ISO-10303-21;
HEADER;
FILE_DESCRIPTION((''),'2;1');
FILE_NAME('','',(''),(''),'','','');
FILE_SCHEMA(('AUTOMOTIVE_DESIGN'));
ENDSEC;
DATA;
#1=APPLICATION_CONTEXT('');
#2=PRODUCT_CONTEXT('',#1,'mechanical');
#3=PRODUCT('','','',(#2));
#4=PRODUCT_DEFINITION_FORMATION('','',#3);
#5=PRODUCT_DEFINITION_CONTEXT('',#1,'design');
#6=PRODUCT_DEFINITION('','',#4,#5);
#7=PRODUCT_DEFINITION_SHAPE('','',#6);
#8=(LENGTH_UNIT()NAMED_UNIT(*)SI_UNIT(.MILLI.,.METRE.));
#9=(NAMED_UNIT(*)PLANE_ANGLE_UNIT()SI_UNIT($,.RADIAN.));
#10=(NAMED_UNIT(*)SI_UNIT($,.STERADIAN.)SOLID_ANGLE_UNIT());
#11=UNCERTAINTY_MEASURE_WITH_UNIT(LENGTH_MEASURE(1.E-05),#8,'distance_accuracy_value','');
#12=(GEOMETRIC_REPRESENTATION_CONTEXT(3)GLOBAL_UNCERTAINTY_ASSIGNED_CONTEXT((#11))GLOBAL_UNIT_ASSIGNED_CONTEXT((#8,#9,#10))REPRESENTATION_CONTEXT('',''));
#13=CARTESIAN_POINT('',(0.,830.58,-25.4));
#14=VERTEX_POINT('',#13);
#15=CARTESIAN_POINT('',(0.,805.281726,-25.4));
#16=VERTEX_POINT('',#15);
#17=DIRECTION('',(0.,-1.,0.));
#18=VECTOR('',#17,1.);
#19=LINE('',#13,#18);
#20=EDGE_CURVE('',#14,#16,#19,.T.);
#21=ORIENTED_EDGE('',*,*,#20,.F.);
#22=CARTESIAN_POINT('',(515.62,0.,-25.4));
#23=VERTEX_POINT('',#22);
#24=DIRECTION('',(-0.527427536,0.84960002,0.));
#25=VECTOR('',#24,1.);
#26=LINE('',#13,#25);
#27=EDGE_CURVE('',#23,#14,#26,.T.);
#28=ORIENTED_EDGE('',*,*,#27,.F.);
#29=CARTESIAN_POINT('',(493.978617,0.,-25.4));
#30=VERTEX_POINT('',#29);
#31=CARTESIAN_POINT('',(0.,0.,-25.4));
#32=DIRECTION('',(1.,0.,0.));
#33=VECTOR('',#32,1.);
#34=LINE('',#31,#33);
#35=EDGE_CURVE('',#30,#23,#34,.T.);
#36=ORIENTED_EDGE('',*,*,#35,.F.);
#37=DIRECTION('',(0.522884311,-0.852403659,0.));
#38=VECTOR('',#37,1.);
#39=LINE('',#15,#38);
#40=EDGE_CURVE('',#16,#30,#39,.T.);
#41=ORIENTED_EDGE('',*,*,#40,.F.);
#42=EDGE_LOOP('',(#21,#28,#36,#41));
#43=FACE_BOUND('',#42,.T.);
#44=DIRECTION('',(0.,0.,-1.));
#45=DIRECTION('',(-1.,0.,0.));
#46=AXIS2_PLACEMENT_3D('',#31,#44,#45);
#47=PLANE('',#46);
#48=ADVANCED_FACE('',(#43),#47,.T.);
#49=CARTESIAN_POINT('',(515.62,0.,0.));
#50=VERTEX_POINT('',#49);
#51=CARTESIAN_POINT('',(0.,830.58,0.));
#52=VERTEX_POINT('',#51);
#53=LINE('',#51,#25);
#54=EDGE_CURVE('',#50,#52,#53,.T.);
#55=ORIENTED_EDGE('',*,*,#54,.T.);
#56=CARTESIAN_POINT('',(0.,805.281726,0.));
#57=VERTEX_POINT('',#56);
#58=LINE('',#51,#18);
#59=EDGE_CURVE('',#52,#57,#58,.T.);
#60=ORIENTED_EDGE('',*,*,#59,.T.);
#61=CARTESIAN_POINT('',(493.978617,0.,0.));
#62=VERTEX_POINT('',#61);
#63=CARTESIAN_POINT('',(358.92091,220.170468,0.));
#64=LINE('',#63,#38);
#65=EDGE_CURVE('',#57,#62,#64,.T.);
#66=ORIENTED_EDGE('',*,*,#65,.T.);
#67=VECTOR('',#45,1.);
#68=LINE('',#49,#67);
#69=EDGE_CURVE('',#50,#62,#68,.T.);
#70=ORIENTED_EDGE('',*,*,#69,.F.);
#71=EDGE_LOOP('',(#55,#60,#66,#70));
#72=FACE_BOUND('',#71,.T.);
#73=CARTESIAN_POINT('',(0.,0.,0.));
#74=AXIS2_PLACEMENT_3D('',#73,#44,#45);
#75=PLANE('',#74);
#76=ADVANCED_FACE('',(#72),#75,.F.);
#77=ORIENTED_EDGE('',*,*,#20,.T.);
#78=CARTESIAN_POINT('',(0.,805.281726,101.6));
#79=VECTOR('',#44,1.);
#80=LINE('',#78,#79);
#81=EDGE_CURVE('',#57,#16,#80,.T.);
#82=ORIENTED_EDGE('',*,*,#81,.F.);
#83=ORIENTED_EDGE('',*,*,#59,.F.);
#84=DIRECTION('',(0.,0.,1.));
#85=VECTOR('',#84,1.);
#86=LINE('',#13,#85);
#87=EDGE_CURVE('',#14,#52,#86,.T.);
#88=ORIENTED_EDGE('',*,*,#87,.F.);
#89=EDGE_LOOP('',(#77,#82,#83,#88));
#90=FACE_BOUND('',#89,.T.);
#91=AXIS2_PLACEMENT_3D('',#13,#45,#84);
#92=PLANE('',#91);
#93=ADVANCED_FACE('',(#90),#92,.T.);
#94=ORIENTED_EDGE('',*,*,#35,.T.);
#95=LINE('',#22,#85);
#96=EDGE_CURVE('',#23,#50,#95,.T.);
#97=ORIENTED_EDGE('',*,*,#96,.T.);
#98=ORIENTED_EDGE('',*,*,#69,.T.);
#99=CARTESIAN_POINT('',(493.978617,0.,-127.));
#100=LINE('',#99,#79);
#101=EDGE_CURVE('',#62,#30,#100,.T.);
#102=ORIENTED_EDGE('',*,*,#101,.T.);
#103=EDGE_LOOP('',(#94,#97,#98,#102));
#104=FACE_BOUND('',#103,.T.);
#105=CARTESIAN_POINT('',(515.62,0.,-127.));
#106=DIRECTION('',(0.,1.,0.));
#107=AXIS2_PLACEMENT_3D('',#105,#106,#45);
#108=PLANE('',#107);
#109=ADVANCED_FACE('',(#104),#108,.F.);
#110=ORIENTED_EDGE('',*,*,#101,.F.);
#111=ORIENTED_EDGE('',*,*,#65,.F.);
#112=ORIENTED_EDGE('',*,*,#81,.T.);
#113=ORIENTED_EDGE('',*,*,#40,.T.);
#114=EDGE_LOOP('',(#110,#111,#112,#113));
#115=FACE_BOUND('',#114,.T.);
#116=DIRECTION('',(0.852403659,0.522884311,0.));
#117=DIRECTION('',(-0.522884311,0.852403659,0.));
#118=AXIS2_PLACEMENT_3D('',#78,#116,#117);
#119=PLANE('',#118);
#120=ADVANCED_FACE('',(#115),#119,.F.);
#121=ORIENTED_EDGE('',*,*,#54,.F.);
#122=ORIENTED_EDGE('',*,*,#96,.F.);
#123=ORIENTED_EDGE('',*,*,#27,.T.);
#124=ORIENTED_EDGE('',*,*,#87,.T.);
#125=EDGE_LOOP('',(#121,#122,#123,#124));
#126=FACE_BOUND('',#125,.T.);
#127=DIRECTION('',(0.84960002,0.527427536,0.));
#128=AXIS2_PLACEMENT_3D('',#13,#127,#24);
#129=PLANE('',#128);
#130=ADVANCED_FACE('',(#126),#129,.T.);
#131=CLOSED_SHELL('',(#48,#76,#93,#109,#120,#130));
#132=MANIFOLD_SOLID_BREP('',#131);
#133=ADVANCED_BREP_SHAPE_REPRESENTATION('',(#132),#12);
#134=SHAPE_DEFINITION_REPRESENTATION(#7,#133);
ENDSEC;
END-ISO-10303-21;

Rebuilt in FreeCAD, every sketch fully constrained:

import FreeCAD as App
import Part
import Sketcher
Q = App.Units.Quantity


def add_polygon(sketch, points):
    """Adds a closed chain of lines whose ends are joined by coincident constraints."""
    first, n = sketch.GeometryCount, len(points)
    for a, b in zip(points, points[1:] + points[:1]):
        sketch.addGeometry(Part.LineSegment(App.Vector(*a, 0), App.Vector(*b, 0)), False)
    for i in range(n):
        sketch.addConstraint(Sketcher.Constraint("Coincident", first + i, 2, first + (i + 1) % n, 1))

doc = App.newDocument("Part")
body = doc.addObject("PartDesign::Body", "Body")

# Sketch on XY plane
sketch1 = doc.addObject("Sketcher::SketchObject", "Sketch")
body.addObject(sketch1)
sketch1.AttachmentSupport = (doc.XY_Plane, [""])
sketch1.MapMode = "FlatFace"
add_polygon(sketch1, [(516, 0), (0, 831), (0, 782), (494, -13)])  # lines 0-3
sketch1.addConstraint([
    Sketcher.Constraint("Vertical", 1),
    Sketcher.Constraint("PointOnObject", 0, 2, -2),
    Sketcher.Constraint("PointOnObject", 3, 2, -1),
    Sketcher.Constraint("Parallel", 0, 2),
    Sketcher.Constraint("Perpendicular", 2, 3),
    Sketcher.Constraint("Distance", 3, Q("1 in")),
    Sketcher.Constraint("DistanceY", -1, 1, 0, 2, Q("32.7 in")),
    Sketcher.Constraint("DistanceX", -1, 1, 3, 2, Q("20.3 in")),
])
pad1 = doc.addObject("PartDesign::Pad", "Pad")
body.addObject(pad1)
pad1.Profile = sketch1
pad1.Length = Q("1 in")
pad1.Reversed = True

# Sketch on XY plane
sketch2 = doc.addObject("Sketcher::SketchObject", "Sketch001")
body.addObject(sketch2)
sketch2.AttachmentSupport = (doc.XY_Plane, [""])
sketch2.MapMode = "FlatFace"
add_polygon(sketch2, [(516, 0), (486, 0), (494, -13)])  # lines 0-2
sketch2.addConstraint([
    Sketcher.Constraint("Horizontal", 0),
    Sketcher.Constraint("PointOnObject", 0, 2, -1),
    Sketcher.Constraint("Perpendicular", 1, 2),
    Sketcher.Constraint("Distance", 2, Q("1 in")),
    Sketcher.Constraint("DistanceX", -1, 1, 2, 2, Q("20.3 in")),
    Sketcher.Constraint("DistanceX", -1, 1, 1, 2, Q("19.4504 in")),
])
pocket1 = doc.addObject("PartDesign::Pocket", "Pocket")
body.addObject(pocket1)
pocket1.Profile = sketch2
pocket1.Length = Q("5 in")

# Sketch on XY plane
sketch3 = doc.addObject("Sketcher::SketchObject", "Sketch002")
body.addObject(sketch3)
sketch3.AttachmentSupport = (doc.XY_Plane, [""])
sketch3.MapMode = "FlatFace"
sketch3.AttachmentOffset = App.Placement(App.Vector(0, 0, -1 * 25.4), App.Rotation())
add_polygon(sketch3, [(0, 805), (494, 0), (486, 0), (0, 782)])  # lines 0-3
sketch3.addConstraint([
    Sketcher.Constraint("Horizontal", 1),
    Sketcher.Constraint("Vertical", 3),
    Sketcher.Constraint("PointOnObject", 0, 2, -1),
    Sketcher.Constraint("PointOnObject", 2, 2, -2),
    Sketcher.Constraint("DistanceY", 3, 1, 3, 2, Q("0.9 in")),
    Sketcher.Constraint("DistanceX", 1, 2, 1, 1, 8.255038),
    Sketcher.Constraint("DistanceX", -1, 1, 1, 2, 485.723579),
    Sketcher.Constraint("Distance", 0, 944.718758),
])
pocket2 = doc.addObject("PartDesign::Pocket", "Pocket001")
body.addObject(pocket2)
pocket2.Profile = sketch3
pocket2.Length = Q("5 in")
pocket2.Reversed = True

doc.recompute()
